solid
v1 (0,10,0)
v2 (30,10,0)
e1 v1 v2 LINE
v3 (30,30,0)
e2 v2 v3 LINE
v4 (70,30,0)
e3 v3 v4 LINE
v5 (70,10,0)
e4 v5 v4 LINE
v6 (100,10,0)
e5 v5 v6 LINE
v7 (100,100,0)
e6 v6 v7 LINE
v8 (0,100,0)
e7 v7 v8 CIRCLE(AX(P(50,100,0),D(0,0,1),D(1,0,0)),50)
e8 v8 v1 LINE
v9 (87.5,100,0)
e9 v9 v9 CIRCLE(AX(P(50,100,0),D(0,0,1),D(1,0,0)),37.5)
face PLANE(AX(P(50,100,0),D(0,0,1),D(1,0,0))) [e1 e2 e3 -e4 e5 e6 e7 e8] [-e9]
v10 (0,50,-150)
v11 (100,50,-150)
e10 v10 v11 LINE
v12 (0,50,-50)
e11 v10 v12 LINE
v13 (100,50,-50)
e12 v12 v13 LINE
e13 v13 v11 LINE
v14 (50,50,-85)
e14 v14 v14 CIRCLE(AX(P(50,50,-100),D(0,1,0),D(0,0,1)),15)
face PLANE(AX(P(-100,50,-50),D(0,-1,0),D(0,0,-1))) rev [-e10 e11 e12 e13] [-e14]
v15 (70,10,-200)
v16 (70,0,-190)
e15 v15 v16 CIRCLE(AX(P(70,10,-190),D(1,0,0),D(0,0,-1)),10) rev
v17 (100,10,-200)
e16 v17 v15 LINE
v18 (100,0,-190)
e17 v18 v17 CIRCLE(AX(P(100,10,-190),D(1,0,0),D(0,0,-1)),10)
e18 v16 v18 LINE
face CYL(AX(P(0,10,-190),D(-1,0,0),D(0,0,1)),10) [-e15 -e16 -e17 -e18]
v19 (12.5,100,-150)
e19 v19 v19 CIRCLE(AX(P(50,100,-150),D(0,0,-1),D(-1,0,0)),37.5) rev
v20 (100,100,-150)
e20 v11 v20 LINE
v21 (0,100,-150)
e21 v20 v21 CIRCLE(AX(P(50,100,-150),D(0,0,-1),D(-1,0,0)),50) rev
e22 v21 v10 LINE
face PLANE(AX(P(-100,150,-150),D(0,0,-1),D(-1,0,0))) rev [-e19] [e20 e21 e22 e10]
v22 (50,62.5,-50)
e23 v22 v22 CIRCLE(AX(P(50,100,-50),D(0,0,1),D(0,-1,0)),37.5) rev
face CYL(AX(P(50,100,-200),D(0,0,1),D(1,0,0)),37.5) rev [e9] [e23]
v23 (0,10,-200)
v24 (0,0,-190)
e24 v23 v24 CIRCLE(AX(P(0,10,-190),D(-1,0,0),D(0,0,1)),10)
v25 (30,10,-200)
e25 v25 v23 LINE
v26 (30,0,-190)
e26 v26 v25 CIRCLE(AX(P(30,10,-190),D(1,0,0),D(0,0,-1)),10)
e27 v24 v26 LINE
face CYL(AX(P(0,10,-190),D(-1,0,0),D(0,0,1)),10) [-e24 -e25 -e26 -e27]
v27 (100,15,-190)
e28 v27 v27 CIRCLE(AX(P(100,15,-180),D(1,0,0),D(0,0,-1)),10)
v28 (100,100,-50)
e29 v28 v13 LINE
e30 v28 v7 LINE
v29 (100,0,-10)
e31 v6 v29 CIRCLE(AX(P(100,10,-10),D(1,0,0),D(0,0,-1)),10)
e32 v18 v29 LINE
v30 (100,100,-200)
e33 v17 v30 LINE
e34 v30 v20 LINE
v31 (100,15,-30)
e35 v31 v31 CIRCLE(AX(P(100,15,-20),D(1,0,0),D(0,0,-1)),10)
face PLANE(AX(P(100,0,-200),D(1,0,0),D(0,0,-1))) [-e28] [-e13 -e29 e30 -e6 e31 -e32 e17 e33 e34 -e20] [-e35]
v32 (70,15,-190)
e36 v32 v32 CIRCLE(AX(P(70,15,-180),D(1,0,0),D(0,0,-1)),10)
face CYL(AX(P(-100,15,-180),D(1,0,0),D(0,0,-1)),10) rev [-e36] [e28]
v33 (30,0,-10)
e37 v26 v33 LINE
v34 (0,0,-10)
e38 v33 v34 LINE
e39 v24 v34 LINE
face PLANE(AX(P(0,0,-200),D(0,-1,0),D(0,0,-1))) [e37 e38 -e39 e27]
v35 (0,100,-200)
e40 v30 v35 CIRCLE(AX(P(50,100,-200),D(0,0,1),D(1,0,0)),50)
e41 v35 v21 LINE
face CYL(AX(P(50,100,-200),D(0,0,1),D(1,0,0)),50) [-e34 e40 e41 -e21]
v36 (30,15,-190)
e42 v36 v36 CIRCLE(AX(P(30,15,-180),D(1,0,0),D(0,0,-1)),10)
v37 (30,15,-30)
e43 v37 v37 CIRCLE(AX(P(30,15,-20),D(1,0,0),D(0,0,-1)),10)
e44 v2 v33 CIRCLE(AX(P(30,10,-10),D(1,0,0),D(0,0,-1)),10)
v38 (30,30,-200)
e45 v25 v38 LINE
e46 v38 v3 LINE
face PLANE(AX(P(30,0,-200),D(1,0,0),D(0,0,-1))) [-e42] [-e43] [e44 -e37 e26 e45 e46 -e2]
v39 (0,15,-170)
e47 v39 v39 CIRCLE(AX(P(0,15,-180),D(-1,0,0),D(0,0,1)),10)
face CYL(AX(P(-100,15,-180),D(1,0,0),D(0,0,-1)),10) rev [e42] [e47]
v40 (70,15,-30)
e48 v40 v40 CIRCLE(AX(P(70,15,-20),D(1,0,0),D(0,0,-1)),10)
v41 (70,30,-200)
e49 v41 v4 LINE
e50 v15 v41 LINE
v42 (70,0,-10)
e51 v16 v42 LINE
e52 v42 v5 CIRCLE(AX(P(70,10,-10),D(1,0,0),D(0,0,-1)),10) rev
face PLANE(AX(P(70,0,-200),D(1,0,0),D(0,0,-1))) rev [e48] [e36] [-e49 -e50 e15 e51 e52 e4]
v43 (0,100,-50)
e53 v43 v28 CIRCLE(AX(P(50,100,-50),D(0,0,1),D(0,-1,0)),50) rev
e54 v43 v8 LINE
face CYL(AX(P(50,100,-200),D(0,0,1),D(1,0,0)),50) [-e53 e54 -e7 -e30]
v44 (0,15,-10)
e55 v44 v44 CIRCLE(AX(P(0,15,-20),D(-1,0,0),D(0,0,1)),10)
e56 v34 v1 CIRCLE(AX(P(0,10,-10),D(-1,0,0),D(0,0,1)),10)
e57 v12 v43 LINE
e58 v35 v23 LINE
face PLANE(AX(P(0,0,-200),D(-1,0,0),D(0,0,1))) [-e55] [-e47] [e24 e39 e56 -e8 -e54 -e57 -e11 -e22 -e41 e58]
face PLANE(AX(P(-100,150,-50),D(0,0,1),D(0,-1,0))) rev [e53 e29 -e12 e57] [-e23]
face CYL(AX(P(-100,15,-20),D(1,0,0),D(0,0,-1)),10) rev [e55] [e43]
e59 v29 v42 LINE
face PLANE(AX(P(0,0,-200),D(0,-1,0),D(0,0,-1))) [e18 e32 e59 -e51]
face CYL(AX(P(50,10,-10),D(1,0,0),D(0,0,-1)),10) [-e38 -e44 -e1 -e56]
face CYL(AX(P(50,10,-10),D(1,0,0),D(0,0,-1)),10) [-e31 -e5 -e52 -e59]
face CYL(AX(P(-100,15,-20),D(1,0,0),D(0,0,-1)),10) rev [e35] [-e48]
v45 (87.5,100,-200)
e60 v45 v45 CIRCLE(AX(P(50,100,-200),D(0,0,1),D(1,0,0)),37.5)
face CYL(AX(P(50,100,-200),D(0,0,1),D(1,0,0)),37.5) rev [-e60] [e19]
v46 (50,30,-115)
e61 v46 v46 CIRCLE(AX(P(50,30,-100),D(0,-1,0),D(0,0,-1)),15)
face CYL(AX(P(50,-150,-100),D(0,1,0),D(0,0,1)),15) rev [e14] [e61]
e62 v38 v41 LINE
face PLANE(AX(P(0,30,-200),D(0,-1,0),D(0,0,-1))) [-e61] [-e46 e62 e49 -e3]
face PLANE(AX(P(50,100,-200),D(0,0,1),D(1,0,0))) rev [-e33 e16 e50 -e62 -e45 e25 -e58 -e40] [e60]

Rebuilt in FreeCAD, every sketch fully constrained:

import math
import FreeCAD as App
import Part
import Sketcher
from FreeCAD import Vector
Q = App.Units.Quantity


def edges_at(feature, points):
    """Names of the edges that pass closest to the given points."""
    edges = feature.Shape.Edges
    near = lambda p: min(range(len(edges)), key=lambda i: edges[i].distToShape(Part.Vertex(*p))[0])
    return sorted({f"Edge{near(p) + 1}" for p in points})


def add_polygon(sketch, points):
    """Adds a closed chain of lines whose ends are joined by coincident constraints."""
    first, n = sketch.GeometryCount, len(points)
    for a, b in zip(points, points[1:] + points[:1]):
        sketch.addGeometry(Part.LineSegment(App.Vector(*a, 0), App.Vector(*b, 0)), False)
    for i in range(n):
        sketch.addConstraint(Sketcher.Constraint("Coincident", first + i, 2, first + (i + 1) % n, 1))

doc = App.newDocument("Part")
body = doc.addObject("PartDesign::Body", "Body")

sketch1 = body.newObject("Sketcher::SketchObject", "Sketch")
sketch1.AttachmentSupport = (doc.getObject("XY_Plane"), [""])
sketch1.MapMode = "FlatFace"
sketch1.addGeometry([
    Part.LineSegment(Vector(0, 0, 0), Vector(100, 0, 0)),
    Part.LineSegment(Vector(100, 0, 0), Vector(100, 100, 0)),
    Part.ArcOfCircle(Part.Circle(Vector(50, 100, 0), Vector(0, 0, 1), 50), math.radians(0), math.radians(180)),
    Part.LineSegment(Vector(0, 100, 0), Vector(0, 0, 0)),
], False)
sketch1.addConstraint([
    Sketcher.Constraint("Coincident", 0, 2, 1, 1),
    Sketcher.Constraint("Tangent", 1, 2, 2, 1),
    Sketcher.Constraint("Tangent", 2, 2, 3, 1),
    Sketcher.Constraint("Coincident", 3, 2, 0, 1),
    Sketcher.Constraint("Horizontal", 0),
    Sketcher.Constraint("Vertical", 1),
    Sketcher.Constraint("Vertical", 3),
    Sketcher.Constraint("Coincident", 3, 2, -1, 1),
    Sketcher.Constraint("Equal", 0, 1),
    Sketcher.Constraint("Radius", 2, Q("50 mm")),
])
pad1 = body.newObject("PartDesign::Pad", "Pad")
pad1.Profile = sketch1
pad1.Length = 200
pad1.Reversed = True

sketch2 = body.newObject("Sketcher::SketchObject", "Sketch001")
sketch2.AttachmentSupport = (doc.getObject("XY_Plane"), [""])
sketch2.MapMode = "FlatFace"
sketch2.addGeometry(Part.Circle(Vector(50, 100, 0), Vector(0, 0, 1), 38), False)
add_polygon(sketch2, [(30, 30), (30, 0), (70, 0), (70, 30)])
sketch2.addConstraint([
    Sketcher.Constraint("Vertical", 1),
    Sketcher.Constraint("Horizontal", 2),
    Sketcher.Constraint("Vertical", 3),
    Sketcher.Constraint("Horizontal", 4),
    Sketcher.Constraint("PointOnObject", 1, 2, -1),
    Sketcher.Constraint("Diameter", 0, Q("75 mm")),
    Sketcher.Constraint("DistanceX", 2, 1, 2, 2, Q("40 mm")),
    Sketcher.Constraint("DistanceY", 1, 2, 1, 1, Q("30 mm")),
    Sketcher.Constraint("DistanceX", -1, 1, 0, 3, Q("50 mm")),
    Sketcher.Constraint("DistanceY", -1, 1, 0, 3, Q("100 mm")),
    Sketcher.Constraint("DistanceX", -1, 1, 1, 2, Q("30 mm")),
])
pocket1 = body.newObject("PartDesign::Pocket", "Pocket")
pocket1.Profile = sketch2
pocket1.Length = 200

sketch3 = body.newObject("Sketcher::SketchObject", "Sketch002")
sketch3.AttachmentSupport = (doc.getObject("YZ_Plane"), [""])
sketch3.MapMode = "FlatFace"
sketch3.AttachmentOffset = App.Placement(Vector(0, 0, 100), App.Rotation())
sketch3.addGeometry(Part.Circle(Vector(15, -20, 0), Vector(0, 0, 1), 10), False)
sketch3.addGeometry(Part.Circle(Vector(15, -180, 0), Vector(0, 0, 1), 10), False)
add_polygon(sketch3, [(150, -50), (50, -50), (50, -150), (150, -150)])
sketch3.addConstraint([
    Sketcher.Constraint("Horizontal", 2),
    Sketcher.Constraint("Vertical", 3),
    Sketcher.Constraint("Horizontal", 4),
    Sketcher.Constraint("Vertical", 5),
    Sketcher.Constraint("Equal", 0, 1),
    Sketcher.Constraint("Vertical", 0, 3, 1, 3),
    Sketcher.Constraint("Equal", 4, 3),
    Sketcher.Constraint("Diameter", 0, Q("20 mm")),
    Sketcher.Constraint("DistanceX", 2, 2, 2, 1, Q("100 mm")),
    Sketcher.Constraint("DistanceX", -1, 1, 0, 3, Q("15 mm")),
    Sketcher.Constraint("DistanceY", 0, 3, -1, 1, Q("20 mm")),
    Sketcher.Constraint("DistanceY", 1, 3, -1, 1, Q("180 mm")),
    Sketcher.Constraint("DistanceX", -1, 1, 2, 2, Q("50 mm")),
    Sketcher.Constraint("DistanceY", 2, 2, -1, 1, Q("50 mm")),
])
pocket2 = body.newObject("PartDesign::Pocket", "Pocket001")
pocket2.Profile = sketch3
pocket2.Length = 200

sketch4 = body.newObject("Sketcher::SketchObject", "Sketch003")
sketch4.AttachmentSupport = (doc.getObject("XZ_Plane"), [""])
sketch4.MapMode = "FlatFace"
sketch4.AttachmentOffset = App.Placement(Vector(0, 0, -50), App.Rotation())
sketch4.addGeometry(Part.Circle(Vector(50, -100, 0), Vector(0, 0, 1), 15), False)
sketch4.addConstraint([
    Sketcher.Constraint("Diameter", 0, Q("30 mm")),
    Sketcher.Constraint("DistanceX", -1, 1, 0, 3, Q("50 mm")),
    Sketcher.Constraint("DistanceY", 0, 3, -1, 1, Q("100 mm")),
])
pocket3 = body.newObject("PartDesign::Pocket", "Pocket002")
pocket3.Profile = sketch4
pocket3.Length = 200
pocket3.Reversed = True
doc.recompute()

fillet = body.newObject("PartDesign::Fillet", "Fillet")
fillet.Base = (pocket3, edges_at(pocket3, [
    (85, 0, 0),
    (85, 0, -200),
    (15, 0, 0),
    (15, 0, -200),
]))
fillet.Radius = 10

doc.recompute()
